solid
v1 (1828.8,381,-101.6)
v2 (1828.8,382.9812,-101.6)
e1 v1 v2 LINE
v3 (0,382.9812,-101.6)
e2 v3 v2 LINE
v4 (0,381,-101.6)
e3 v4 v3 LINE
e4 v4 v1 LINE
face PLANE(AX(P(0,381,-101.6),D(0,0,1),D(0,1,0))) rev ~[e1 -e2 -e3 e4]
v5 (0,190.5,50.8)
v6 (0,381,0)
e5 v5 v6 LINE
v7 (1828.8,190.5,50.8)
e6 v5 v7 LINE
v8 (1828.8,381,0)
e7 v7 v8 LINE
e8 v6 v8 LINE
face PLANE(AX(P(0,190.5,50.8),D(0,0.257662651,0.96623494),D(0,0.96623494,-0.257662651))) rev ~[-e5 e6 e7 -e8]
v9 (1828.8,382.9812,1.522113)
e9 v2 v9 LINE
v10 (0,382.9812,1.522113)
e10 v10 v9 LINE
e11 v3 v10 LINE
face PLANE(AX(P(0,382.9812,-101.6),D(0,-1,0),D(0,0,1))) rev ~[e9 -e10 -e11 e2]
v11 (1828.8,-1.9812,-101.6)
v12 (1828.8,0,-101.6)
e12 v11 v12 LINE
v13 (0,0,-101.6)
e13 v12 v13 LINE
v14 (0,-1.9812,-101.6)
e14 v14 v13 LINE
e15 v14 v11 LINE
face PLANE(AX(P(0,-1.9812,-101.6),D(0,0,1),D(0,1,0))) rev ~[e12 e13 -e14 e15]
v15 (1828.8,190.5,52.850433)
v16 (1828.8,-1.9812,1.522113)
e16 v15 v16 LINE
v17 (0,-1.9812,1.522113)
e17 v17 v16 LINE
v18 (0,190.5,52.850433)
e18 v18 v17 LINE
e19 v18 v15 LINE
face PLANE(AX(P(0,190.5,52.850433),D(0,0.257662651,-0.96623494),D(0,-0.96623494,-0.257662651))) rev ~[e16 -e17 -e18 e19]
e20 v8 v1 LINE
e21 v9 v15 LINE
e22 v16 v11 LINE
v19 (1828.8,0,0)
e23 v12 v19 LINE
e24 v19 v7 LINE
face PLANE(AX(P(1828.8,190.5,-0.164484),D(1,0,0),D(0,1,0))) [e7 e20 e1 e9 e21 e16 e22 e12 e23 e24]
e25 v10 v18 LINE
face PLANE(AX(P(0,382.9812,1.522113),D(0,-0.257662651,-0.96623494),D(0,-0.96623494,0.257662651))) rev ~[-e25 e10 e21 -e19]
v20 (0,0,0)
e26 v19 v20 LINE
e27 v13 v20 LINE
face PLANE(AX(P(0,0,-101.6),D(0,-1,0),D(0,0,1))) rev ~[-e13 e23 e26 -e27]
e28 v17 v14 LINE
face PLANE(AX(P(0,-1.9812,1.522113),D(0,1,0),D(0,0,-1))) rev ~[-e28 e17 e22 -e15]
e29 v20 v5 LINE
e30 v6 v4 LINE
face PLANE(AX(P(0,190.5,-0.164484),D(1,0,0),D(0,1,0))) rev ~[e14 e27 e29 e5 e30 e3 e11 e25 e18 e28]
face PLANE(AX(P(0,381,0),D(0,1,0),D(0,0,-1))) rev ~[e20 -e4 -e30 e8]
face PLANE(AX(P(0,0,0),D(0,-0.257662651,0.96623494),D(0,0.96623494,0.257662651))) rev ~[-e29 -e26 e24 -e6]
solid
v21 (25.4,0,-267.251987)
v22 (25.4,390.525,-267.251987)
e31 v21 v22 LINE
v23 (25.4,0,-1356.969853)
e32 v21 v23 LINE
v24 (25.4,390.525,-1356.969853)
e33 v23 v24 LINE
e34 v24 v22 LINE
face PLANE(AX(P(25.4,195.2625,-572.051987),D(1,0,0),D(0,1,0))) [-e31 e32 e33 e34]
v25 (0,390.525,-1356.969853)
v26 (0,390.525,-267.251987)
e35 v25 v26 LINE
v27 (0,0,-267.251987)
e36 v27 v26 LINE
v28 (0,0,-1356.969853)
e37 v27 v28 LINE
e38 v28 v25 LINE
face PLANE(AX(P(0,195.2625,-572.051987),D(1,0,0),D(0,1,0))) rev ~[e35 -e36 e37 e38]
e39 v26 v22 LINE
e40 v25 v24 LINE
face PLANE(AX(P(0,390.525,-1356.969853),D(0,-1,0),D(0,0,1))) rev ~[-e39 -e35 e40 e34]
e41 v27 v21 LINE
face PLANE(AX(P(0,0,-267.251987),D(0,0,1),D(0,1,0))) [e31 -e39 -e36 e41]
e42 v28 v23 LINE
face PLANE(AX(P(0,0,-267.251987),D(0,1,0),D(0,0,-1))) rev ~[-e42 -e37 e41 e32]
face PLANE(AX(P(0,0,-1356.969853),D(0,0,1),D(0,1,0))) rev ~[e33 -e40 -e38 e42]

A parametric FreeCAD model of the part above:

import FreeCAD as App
import Part
import Sketcher
from FreeCAD import Vector
Q = App.Units.Quantity


def add_polygon(sketch, points):
    """Adds a closed chain of lines whose ends are joined by coincident constraints."""
    first, n = sketch.GeometryCount, len(points)
    for a, b in zip(points, points[1:] + points[:1]):
        sketch.addGeometry(Part.LineSegment(App.Vector(*a, 0), App.Vector(*b, 0)), False)
    for i in range(n):
        sketch.addConstraint(Sketcher.Constraint("Coincident", first + i, 2, first + (i + 1) % n, 1))

doc = App.newDocument("Part")
body = doc.addObject("PartDesign::Body", "Body")
body.AllowCompound = True

# Sketch on YZ plane
sketch1 = doc.addObject("Sketcher::SketchObject", "Sketch")
body.addObject(sketch1)
sketch1.AttachmentSupport = (doc.YZ_Plane, [""])
sketch1.MapMode = "FlatFace"
add_polygon(sketch1, [(0, 0), (190.5, 50.8), (381, 0), (381, -101.6), (383, -101.6), (383, 1.5), (190.5, 52.9), (-2, 1.5), (-2, -101.6), (0, -101.6)])  # lines 0-9
sketch1.addConstraint([
    Sketcher.Constraint("Vertical", 2),
    Sketcher.Constraint("Horizontal", 3),
    Sketcher.Constraint("Vertical", 4),
    Sketcher.Constraint("Vertical", 7),
    Sketcher.Constraint("Horizontal", 8),
    Sketcher.Constraint("Vertical", 9),
    Sketcher.Constraint("Coincident", 9, 2, -1, 1),
    Sketcher.Constraint("PointOnObject", 1, 2, -1),
    Sketcher.Constraint("Parallel", 1, 5),
    Sketcher.Constraint("Parallel", 0, 6),
    Sketcher.Constraint("Horizontal", 4, 2, 6, 2),
    Sketcher.Constraint("Horizontal", 3, 2, 7, 2),
    Sketcher.Constraint("Vertical", 0, 2, 5, 2),
    Sketcher.Constraint("Equal", 3, 8),
    Sketcher.Constraint("DistanceY", 2, 2, 2, 1, Q("4 in")),
    Sketcher.Constraint("DistanceY", -1, 1, 0, 2, Q("2 in")),
    Sketcher.Constraint("DistanceX", -1, 1, 1, 2, Q("15 in")),
    Sketcher.Constraint("DistanceX", 3, 1, 3, 2, Q("0.078 in")),
    Sketcher.Constraint("DistanceY", 4, 1, 4, 2, 103.122113),
])
pad1 = doc.addObject("PartDesign::Pad", "Pad")
body.addObject(pad1)
pad1.Profile = sketch1
pad1.Length = Q("72 in")

# Sketch on YZ plane
sketch2 = doc.addObject("Sketcher::SketchObject", "Sketch001")
body.addObject(sketch2)
sketch2.AttachmentSupport = (doc.YZ_Plane, [""])
sketch2.MapMode = "FlatFace"
add_polygon(sketch2, [(0, 0), (190.5, 50.8), (381, 0), (381, -101.6), (383, -101.6), (383, 1.5), (190.5, 52.9), (-2, 1.5), (-2, -101.6), (0, -101.6)])  # lines 0-9
add_polygon(sketch2, [(0, -267.3), (0, -1357), (390.5, -1357), (390.5, -267.3)])  # lines 10-13
sketch2.addConstraint([
    Sketcher.Constraint("Vertical", 2),
    Sketcher.Constraint("Horizontal", 3),
    Sketcher.Constraint("Vertical", 4),
    Sketcher.Constraint("Vertical", 7),
    Sketcher.Constraint("Horizontal", 8),
    Sketcher.Constraint("Vertical", 9),
    Sketcher.Constraint("Vertical", 10),
    Sketcher.Constraint("Horizontal", 11),
    Sketcher.Constraint("Vertical", 12),
    Sketcher.Constraint("Horizontal", 13),
    Sketcher.Constraint("Coincident", 9, 2, -1, 1),
    Sketcher.Constraint("PointOnObject", 1, 2, -1),
    Sketcher.Constraint("PointOnObject", 10, 2, -2),
    Sketcher.Constraint("Parallel", 1, 5),
    Sketcher.Constraint("Parallel", 0, 6),
    Sketcher.Constraint("Horizontal", 4, 2, 6, 2),
    Sketcher.Constraint("Horizontal", 3, 2, 7, 2),
    Sketcher.Constraint("Vertical", 0, 2, 5, 2),
    Sketcher.Constraint("Equal", 3, 8),
    Sketcher.Constraint("DistanceY", 2, 2, 2, 1, Q("4 in")),
    Sketcher.Constraint("DistanceY", -1, 1, 0, 2, Q("2 in")),
    Sketcher.Constraint("DistanceX", -1, 1, 1, 2, Q("15 in")),
    Sketcher.Constraint("DistanceX", 3, 1, 3, 2, Q("0.078 in")),
    Sketcher.Constraint("DistanceX", 11, 1, 11, 2, Q("15.375 in")),
    Sketcher.Constraint("DistanceY", 12, 2, 4, 2, 268.7741),
    Sketcher.Constraint("DistanceY", 4, 1, 4, 2, 103.122113),
    Sketcher.Constraint("DistanceY", 10, 2, 10, 1, 1089.717866),
])
pad2 = doc.addObject("PartDesign::Pad", "Pad001")
body.addObject(pad2)
pad2.Profile = sketch2
pad2.Length = Q("1 in")

doc.recompute()
